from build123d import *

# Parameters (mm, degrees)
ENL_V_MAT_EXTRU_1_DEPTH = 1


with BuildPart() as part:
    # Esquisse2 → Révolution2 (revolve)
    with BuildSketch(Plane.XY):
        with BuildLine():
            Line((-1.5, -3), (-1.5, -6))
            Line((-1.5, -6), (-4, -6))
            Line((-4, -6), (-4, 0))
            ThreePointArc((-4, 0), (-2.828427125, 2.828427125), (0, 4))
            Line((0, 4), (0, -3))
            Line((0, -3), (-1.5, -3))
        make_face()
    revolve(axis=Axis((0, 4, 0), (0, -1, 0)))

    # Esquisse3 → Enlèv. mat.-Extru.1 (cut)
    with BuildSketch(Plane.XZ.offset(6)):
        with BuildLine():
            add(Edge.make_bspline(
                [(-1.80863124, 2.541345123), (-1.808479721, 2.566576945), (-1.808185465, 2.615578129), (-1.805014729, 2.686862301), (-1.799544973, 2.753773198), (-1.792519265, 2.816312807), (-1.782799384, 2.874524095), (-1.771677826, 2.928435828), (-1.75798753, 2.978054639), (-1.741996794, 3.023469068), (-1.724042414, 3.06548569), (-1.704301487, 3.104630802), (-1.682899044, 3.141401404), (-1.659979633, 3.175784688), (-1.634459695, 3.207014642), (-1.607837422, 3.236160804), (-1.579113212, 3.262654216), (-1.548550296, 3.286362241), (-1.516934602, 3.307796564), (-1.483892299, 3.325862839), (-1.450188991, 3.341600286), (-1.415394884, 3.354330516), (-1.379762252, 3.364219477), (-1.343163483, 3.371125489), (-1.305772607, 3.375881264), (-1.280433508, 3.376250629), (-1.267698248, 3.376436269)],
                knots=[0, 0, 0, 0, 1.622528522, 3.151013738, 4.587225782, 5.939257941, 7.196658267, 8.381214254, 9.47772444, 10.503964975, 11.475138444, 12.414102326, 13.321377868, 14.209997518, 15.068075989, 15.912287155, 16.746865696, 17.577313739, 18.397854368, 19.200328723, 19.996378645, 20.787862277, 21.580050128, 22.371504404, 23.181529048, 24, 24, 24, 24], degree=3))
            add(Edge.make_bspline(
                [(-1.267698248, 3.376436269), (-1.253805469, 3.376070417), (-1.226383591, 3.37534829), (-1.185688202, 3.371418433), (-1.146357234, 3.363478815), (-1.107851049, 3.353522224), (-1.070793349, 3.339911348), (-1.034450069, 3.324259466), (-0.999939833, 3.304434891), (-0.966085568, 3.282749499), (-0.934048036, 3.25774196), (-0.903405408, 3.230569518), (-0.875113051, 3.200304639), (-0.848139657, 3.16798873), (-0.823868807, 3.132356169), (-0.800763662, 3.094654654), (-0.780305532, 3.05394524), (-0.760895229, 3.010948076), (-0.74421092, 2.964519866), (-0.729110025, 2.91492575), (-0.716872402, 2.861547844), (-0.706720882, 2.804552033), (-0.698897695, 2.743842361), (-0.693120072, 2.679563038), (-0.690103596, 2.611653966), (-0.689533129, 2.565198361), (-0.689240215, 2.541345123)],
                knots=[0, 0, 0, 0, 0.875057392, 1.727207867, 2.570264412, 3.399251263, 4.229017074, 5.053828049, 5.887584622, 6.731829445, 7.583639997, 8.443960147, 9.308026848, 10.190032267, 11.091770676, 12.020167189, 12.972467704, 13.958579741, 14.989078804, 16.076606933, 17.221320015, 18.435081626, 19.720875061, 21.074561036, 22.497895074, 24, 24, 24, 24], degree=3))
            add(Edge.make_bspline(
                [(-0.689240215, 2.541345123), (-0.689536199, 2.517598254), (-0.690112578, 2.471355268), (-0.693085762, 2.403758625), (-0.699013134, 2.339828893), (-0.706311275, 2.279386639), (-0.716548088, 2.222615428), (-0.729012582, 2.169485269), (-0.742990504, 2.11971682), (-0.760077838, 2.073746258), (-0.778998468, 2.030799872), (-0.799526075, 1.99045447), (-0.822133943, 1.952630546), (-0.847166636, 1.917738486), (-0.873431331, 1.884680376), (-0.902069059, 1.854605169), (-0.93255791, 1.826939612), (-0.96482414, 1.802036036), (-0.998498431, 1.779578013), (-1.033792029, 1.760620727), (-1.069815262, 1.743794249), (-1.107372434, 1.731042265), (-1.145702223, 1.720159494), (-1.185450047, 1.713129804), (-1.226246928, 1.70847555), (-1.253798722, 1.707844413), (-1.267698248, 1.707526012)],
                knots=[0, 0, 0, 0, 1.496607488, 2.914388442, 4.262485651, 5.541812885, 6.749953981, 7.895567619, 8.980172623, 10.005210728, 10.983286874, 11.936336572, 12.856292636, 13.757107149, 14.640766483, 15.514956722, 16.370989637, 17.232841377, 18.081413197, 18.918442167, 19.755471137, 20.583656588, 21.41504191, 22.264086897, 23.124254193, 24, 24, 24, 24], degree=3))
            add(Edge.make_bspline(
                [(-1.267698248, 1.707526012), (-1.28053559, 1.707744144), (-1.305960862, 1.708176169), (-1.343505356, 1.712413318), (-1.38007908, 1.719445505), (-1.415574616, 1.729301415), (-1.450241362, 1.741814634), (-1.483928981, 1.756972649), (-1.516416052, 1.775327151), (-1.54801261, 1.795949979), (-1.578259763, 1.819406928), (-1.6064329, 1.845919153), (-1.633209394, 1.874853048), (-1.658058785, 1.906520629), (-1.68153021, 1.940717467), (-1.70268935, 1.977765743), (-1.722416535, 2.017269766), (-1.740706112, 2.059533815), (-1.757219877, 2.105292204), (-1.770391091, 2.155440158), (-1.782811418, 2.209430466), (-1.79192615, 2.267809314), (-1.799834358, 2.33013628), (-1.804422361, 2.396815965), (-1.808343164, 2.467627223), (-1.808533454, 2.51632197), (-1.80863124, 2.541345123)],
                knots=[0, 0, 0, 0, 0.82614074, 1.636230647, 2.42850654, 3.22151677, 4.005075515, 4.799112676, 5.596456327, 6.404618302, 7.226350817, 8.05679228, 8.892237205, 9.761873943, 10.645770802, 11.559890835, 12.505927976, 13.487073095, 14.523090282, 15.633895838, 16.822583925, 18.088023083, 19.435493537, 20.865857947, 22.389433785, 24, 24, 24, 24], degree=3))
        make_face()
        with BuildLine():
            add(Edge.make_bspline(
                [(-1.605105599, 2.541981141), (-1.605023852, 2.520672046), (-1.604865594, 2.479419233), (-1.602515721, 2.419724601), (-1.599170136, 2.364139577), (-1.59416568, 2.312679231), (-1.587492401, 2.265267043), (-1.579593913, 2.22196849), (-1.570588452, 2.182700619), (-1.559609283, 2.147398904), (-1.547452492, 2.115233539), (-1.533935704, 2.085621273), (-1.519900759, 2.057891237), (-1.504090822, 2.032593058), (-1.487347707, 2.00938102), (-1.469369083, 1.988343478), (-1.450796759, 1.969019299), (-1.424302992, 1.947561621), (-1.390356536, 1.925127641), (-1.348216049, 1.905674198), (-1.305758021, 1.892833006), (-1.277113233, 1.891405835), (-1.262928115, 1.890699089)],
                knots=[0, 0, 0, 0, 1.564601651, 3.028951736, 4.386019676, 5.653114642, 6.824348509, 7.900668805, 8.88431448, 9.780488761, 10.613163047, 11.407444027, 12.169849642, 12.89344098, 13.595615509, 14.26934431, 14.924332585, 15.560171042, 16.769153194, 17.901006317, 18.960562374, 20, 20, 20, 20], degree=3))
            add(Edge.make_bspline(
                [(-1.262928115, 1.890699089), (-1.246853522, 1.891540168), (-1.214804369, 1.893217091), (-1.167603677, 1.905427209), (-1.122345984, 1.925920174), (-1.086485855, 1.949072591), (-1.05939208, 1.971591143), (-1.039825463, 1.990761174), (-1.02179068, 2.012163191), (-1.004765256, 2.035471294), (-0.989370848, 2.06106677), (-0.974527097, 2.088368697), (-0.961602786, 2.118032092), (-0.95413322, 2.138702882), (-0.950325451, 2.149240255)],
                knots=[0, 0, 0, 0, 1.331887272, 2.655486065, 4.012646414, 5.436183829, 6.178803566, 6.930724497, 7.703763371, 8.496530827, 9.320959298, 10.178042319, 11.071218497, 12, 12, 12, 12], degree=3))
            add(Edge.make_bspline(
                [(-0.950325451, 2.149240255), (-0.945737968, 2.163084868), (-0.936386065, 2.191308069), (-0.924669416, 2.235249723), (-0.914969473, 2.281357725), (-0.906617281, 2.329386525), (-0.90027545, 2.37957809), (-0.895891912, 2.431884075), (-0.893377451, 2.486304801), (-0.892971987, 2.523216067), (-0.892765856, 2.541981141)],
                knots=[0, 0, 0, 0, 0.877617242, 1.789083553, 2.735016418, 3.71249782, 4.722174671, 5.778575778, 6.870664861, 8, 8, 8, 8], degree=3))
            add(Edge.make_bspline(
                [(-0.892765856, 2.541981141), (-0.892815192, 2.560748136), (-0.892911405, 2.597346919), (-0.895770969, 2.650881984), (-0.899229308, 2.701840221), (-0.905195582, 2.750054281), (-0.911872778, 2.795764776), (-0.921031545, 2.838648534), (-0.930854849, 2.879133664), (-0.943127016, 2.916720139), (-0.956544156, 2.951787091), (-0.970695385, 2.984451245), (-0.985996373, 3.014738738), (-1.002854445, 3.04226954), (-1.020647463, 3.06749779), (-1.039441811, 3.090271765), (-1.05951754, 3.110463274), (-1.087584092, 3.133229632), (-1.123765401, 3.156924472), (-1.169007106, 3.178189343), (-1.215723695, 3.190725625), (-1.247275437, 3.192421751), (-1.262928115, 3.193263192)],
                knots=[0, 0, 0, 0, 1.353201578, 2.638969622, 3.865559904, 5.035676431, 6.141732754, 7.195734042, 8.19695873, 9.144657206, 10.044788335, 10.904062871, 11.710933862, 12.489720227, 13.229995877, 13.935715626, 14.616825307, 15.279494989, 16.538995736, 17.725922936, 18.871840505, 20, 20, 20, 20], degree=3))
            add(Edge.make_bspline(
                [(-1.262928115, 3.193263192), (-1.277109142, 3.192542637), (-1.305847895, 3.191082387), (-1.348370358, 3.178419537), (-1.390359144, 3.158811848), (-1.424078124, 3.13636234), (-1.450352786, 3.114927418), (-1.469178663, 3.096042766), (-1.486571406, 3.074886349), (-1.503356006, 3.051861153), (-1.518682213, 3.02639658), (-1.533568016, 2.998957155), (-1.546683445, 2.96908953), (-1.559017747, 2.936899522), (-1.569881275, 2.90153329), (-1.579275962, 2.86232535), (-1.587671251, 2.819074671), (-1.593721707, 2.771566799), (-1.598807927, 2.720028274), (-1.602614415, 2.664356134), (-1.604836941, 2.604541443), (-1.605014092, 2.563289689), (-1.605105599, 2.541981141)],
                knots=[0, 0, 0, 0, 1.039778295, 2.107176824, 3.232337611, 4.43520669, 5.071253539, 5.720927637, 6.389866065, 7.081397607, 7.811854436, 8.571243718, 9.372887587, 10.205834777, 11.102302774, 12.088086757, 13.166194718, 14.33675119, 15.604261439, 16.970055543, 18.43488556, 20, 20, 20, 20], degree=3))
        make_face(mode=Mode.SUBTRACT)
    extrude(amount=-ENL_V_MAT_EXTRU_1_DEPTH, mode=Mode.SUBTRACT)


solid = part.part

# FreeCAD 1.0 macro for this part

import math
import FreeCAD as App
import Part
import Sketcher

V = App.Vector

doc = App.newDocument("Part")
body = doc.addObject("PartDesign::Body", "Body")

# Sketch on XY plane
sketch1 = doc.addObject("Sketcher::SketchObject", "Sketch")
body.addObject(sketch1)
sketch1.AttachmentSupport = (doc.XY_Plane, [""])
sketch1.MapMode = "FlatFace"
sketch1.addGeometry([
    Part.LineSegment(V(-1.5, -6, 0), V(-1.5, -3, 0)),  # 0
    Part.LineSegment(V(-1.5, -3, 0), V(0, -3, 0)),  # 1
    Part.LineSegment(V(0, -3, 0), V(0, 4, 0)),  # 2
    Part.ArcOfCircle(Part.Circle(V(0, 0, 0), V(0, 0, 1), 4), math.radians(90), math.radians(180)),  # 3
    Part.LineSegment(V(-4, 0, 0), V(-4, -6, 0)),  # 4
    Part.LineSegment(V(-4, -6, 0), V(-1.5, -6, 0)),  # 5
], False)
sketch1.addConstraint([
    Sketcher.Constraint("Coincident", 0, 2, 1, 1),
    Sketcher.Constraint("Coincident", 1, 2, 2, 1),
    Sketcher.Constraint("Coincident", 2, 2, 3, 1),
    Sketcher.Constraint("Tangent", 3, 2, 4, 1),
    Sketcher.Constraint("Coincident", 4, 2, 5, 1),
    Sketcher.Constraint("Coincident", 5, 2, 0, 1),
    Sketcher.Constraint("Vertical", 0),
    Sketcher.Constraint("Horizontal", 1),
    Sketcher.Constraint("Vertical", 2),
    Sketcher.Constraint("Vertical", 4),
    Sketcher.Constraint("Horizontal", 5),
    Sketcher.Constraint("Coincident", 3, 3, -1, 1),
    Sketcher.Constraint("PointOnObject", 1, 2, -2),
    Sketcher.Constraint("Radius", 3, 4.0),
    Sketcher.Constraint("DistanceY", 0, 1, 0, 2, 3.0),
    Sketcher.Constraint("DistanceY", 2, 1, 2, 2, 7.0),
    Sketcher.Constraint("DistanceX", 1, 1, 1, 2, 1.5),
])
revolution = doc.addObject("PartDesign::Revolution", "Revolution")
body.addObject(revolution)
revolution.Profile = sketch1
revolution.ReferenceAxis = (sketch1, ["V_Axis"])
revolution.Angle = 360

# Sketch on XZ plane
sketch2 = doc.addObject("Sketcher::SketchObject", "Sketch001")
body.addObject(sketch2)
sketch2.AttachmentSupport = (doc.XZ_Plane, [""])
sketch2.MapMode = "FlatFace"
sketch2.AttachmentOffset = App.Placement(V(0, 0, 6), App.Rotation())
sketch2.addGeometry([
    Part.BSplineCurve([V(-1.808631, 2.541345, 0), V(-1.80848, 2.566577, 0), V(-1.808185, 2.615578, 0), V(-1.805015, 2.686862, 0), V(-1.799545, 2.753773, 0), V(-1.792519, 2.816313, 0), V(-1.782799, 2.874524, 0), V(-1.771678, 2.928436, 0), V(-1.757988, 2.978055, 0), V(-1.741997, 3.023469, 0), V(-1.724042, 3.065486, 0), V(-1.704301, 3.104631, 0), V(-1.682899, 3.141401, 0), V(-1.65998, 3.175785, 0), V(-1.63446, 3.207015, 0), V(-1.607837, 3.236161, 0), V(-1.579113, 3.262654, 0), V(-1.54855, 3.286362, 0), V(-1.516935, 3.307797, 0), V(-1.483892, 3.325863, 0), V(-1.450189, 3.3416, 0), V(-1.415395, 3.354331, 0), V(-1.379762, 3.364219, 0), V(-1.343163, 3.371125, 0), V(-1.305773, 3.375881, 0), V(-1.280434, 3.376251, 0), V(-1.267698, 3.376436, 0)], [4, 1, 1, 1, 1, 1, 1, 1, 1, 1, 1, 1, 1, 1, 1, 1, 1, 1, 1, 1, 1, 1, 1, 1, 4], [0, 1.622528522, 3.151013738, 4.587225782, 5.939257941, 7.196658267, 8.381214254, 9.47772444, 10.503964975, 11.475138444, 12.414102326, 13.321377868, 14.209997518, 15.068075989, 15.912287155, 16.746865696, 17.577313739, 18.397854368, 19.200328723, 19.996378645, 20.787862277, 21.580050128, 22.371504404, 23.181529048, 24], False, 3, [1, 1, 1, 1, 1, 1, 1, 1, 1, 1, 1, 1, 1, 1, 1, 1, 1, 1, 1, 1, 1, 1, 1, 1, 1, 1, 1], False),  # 0
    Part.BSplineCurve([V(-1.267698, 1.707526, 0), V(-1.280536, 1.707744, 0), V(-1.305961, 1.708176, 0), V(-1.343505, 1.712413, 0), V(-1.380079, 1.719446, 0), V(-1.415575, 1.729301, 0), V(-1.450241, 1.741815, 0), V(-1.483929, 1.756973, 0), V(-1.516416, 1.775327, 0), V(-1.548013, 1.79595, 0), V(-1.57826, 1.819407, 0), V(-1.606433, 1.845919, 0), V(-1.633209, 1.874853, 0), V(-1.658059, 1.906521, 0), V(-1.68153, 1.940717, 0), V(-1.702689, 1.977766, 0), V(-1.722417, 2.01727, 0), V(-1.740706, 2.059534, 0), V(-1.75722, 2.105292, 0), V(-1.770391, 2.15544, 0), V(-1.782811, 2.20943, 0), V(-1.791926, 2.267809, 0), V(-1.799834, 2.330136, 0), V(-1.804422, 2.396816, 0), V(-1.808343, 2.467627, 0), V(-1.808533, 2.516322, 0), V(-1.808631, 2.541345, 0)], [4, 1, 1, 1, 1, 1, 1, 1, 1, 1, 1, 1, 1, 1, 1, 1, 1, 1, 1, 1, 1, 1, 1, 1, 4], [0, 0.82614074, 1.636230647, 2.42850654, 3.22151677, 4.005075515, 4.799112676, 5.596456327, 6.404618302, 7.226350817, 8.05679228, 8.892237205, 9.761873943, 10.645770802, 11.559890835, 12.505927976, 13.487073095, 14.523090282, 15.633895838, 16.822583925, 18.088023083, 19.435493537, 20.865857947, 22.389433785, 24], False, 3, [1, 1, 1, 1, 1, 1, 1, 1, 1, 1, 1, 1, 1, 1, 1, 1, 1, 1, 1, 1, 1, 1, 1, 1, 1, 1, 1], False),  # 1
    Part.BSplineCurve([V(-0.68924, 2.541345, 0), V(-0.689536, 2.517598, 0), V(-0.690113, 2.471355, 0), V(-0.693086, 2.403759, 0), V(-0.699013, 2.339829, 0), V(-0.706311, 2.279387, 0), V(-0.716548, 2.222615, 0), V(-0.729013, 2.169485, 0), V(-0.742991, 2.119717, 0), V(-0.760078, 2.073746, 0), V(-0.778998, 2.0308, 0), V(-0.799526, 1.990454, 0), V(-0.822134, 1.952631, 0), V(-0.847167, 1.917738, 0), V(-0.873431, 1.88468, 0), V(-0.902069, 1.854605, 0), V(-0.932558, 1.82694, 0), V(-0.964824, 1.802036, 0), V(-0.998498, 1.779578, 0), V(-1.033792, 1.760621, 0), V(-1.069815, 1.743794, 0), V(-1.107372, 1.731042, 0), V(-1.145702, 1.720159, 0), V(-1.18545, 1.71313, 0), V(-1.226247, 1.708476, 0), V(-1.253799, 1.707844, 0), V(-1.267698, 1.707526, 0)], [4, 1, 1, 1, 1, 1, 1, 1, 1, 1, 1, 1, 1, 1, 1, 1, 1, 1, 1, 1, 1, 1, 1, 1, 4], [0, 1.496607488, 2.914388442, 4.262485651, 5.541812885, 6.749953981, 7.895567619, 8.980172623, 10.005210728, 10.983286874, 11.936336572, 12.856292636, 13.757107149, 14.640766483, 15.514956722, 16.370989637, 17.232841377, 18.081413197, 18.918442167, 19.755471137, 20.583656588, 21.41504191, 22.264086897, 23.124254193, 24], False, 3, [1, 1, 1, 1, 1, 1, 1, 1, 1, 1, 1, 1, 1, 1, 1, 1, 1, 1, 1, 1, 1, 1, 1, 1, 1, 1, 1], False),  # 2
    Part.BSplineCurve([V(-1.267698, 3.376436, 0), V(-1.253805, 3.37607, 0), V(-1.226384, 3.375348, 0), V(-1.185688, 3.371418, 0), V(-1.146357, 3.363479, 0), V(-1.107851, 3.353522, 0), V(-1.070793, 3.339911, 0), V(-1.03445, 3.324259, 0), V(-0.99994, 3.304435, 0), V(-0.966086, 3.282749, 0), V(-0.934048, 3.257742, 0), V(-0.903405, 3.23057, 0), V(-0.875113, 3.200305, 0), V(-0.84814, 3.167989, 0), V(-0.823869, 3.132356, 0), V(-0.800764, 3.094655, 0), V(-0.780306, 3.053945, 0), V(-0.760895, 3.010948, 0), V(-0.744211, 2.96452, 0), V(-0.72911, 2.914926, 0), V(-0.716872, 2.861548, 0), V(-0.706721, 2.804552, 0), V(-0.698898, 2.743842, 0), V(-0.69312, 2.679563, 0), V(-0.690104, 2.611654, 0), V(-0.689533, 2.565198, 0), V(-0.68924, 2.541345, 0)], [4, 1, 1, 1, 1, 1, 1, 1, 1, 1, 1, 1, 1, 1, 1, 1, 1, 1, 1, 1, 1, 1, 1, 1, 4], [0, 0.875057392, 1.727207867, 2.570264412, 3.399251263, 4.229017074, 5.053828049, 5.887584622, 6.731829445, 7.583639997, 8.443960147, 9.308026848, 10.190032267, 11.091770676, 12.020167189, 12.972467704, 13.958579741, 14.989078804, 16.076606933, 17.221320015, 18.435081626, 19.720875061, 21.074561036, 22.497895074, 24], False, 3, [1, 1, 1, 1, 1, 1, 1, 1, 1, 1, 1, 1, 1, 1, 1, 1, 1, 1, 1, 1, 1, 1, 1, 1, 1, 1, 1], False),  # 3
    Part.BSplineCurve([V(-1.262928, 3.193263, 0), V(-1.277109, 3.192543, 0), V(-1.305848, 3.191082, 0), V(-1.34837, 3.17842, 0), V(-1.390359, 3.158812, 0), V(-1.424078, 3.136362, 0), V(-1.450353, 3.114927, 0), V(-1.469179, 3.096043, 0), V(-1.486571, 3.074886, 0), V(-1.503356, 3.051861, 0), V(-1.518682, 3.026397, 0), V(-1.533568, 2.998957, 0), V(-1.546683, 2.96909, 0), V(-1.559018, 2.9369, 0), V(-1.569881, 2.901533, 0), V(-1.579276, 2.862325, 0), V(-1.587671, 2.819075, 0), V(-1.593722, 2.771567, 0), V(-1.598808, 2.720028, 0), V(-1.602614, 2.664356, 0), V(-1.604837, 2.604541, 0), V(-1.605014, 2.56329, 0), V(-1.605106, 2.541981, 0)], [4, 1, 1, 1, 1, 1, 1, 1, 1, 1, 1, 1, 1, 1, 1, 1, 1, 1, 1, 1, 4], [0, 1.039778295, 2.107176824, 3.232337611, 4.43520669, 5.071253539, 5.720927637, 6.389866065, 7.081397607, 7.811854436, 8.571243718, 9.372887587, 10.205834777, 11.102302774, 12.088086757, 13.166194718, 14.33675119, 15.604261439, 16.970055543, 18.43488556, 20], False, 3, [1, 1, 1, 1, 1, 1, 1, 1, 1, 1, 1, 1, 1, 1, 1, 1, 1, 1, 1, 1, 1, 1, 1], False),  # 4
    Part.BSplineCurve([V(-0.892766, 2.541981, 0), V(-0.892815, 2.560748, 0), V(-0.892911, 2.597347, 0), V(-0.895771, 2.650882, 0), V(-0.899229, 2.70184, 0), V(-0.905196, 2.750054, 0), V(-0.911873, 2.795765, 0), V(-0.921032, 2.838649, 0), V(-0.930855, 2.879134, 0), V(-0.943127, 2.91672, 0), V(-0.956544, 2.951787, 0), V(-0.970695, 2.984451, 0), V(-0.985996, 3.014739, 0), V(-1.002854, 3.04227, 0), V(-1.020647, 3.067498, 0), V(-1.039442, 3.090272, 0), V(-1.059518, 3.110463, 0), V(-1.087584, 3.13323, 0), V(-1.123765, 3.156924, 0), V(-1.169007, 3.178189, 0), V(-1.215724, 3.190726, 0), V(-1.247275, 3.192422, 0), V(-1.262928, 3.193263, 0)], [4, 1, 1, 1, 1, 1, 1, 1, 1, 1, 1, 1, 1, 1, 1, 1, 1, 1, 1, 1, 4], [0, 1.353201578, 2.638969622, 3.865559904, 5.035676431, 6.141732754, 7.195734042, 8.19695873, 9.144657206, 10.044788335, 10.904062871, 11.710933862, 12.489720227, 13.229995877, 13.935715626, 14.616825307, 15.279494989, 16.538995736, 17.725922936, 18.871840505, 20], False, 3, [1, 1, 1, 1, 1, 1, 1, 1, 1, 1, 1, 1, 1, 1, 1, 1, 1, 1, 1, 1, 1, 1, 1], False),  # 5
    Part.BSplineCurve([V(-0.950325, 2.14924, 0), V(-0.945738, 2.163085, 0), V(-0.936386, 2.191308, 0), V(-0.924669, 2.23525, 0), V(-0.914969, 2.281358, 0), V(-0.906617, 2.329387, 0), V(-0.900275, 2.379578, 0), V(-0.895892, 2.431884, 0), V(-0.893377, 2.486305, 0), V(-0.892972, 2.523216, 0), V(-0.892766, 2.541981, 0)], [4, 1, 1, 1, 1, 1, 1, 1, 4], [0, 0.877617242, 1.789083553, 2.735016418, 3.71249782, 4.722174671, 5.778575778, 6.870664861, 8], False, 3, [1, 1, 1, 1, 1, 1, 1, 1, 1, 1, 1], False),  # 6
    Part.BSplineCurve([V(-1.262928, 1.890699, 0), V(-1.246854, 1.89154, 0), V(-1.214804, 1.893217, 0), V(-1.167604, 1.905427, 0), V(-1.122346, 1.92592, 0), V(-1.086486, 1.949073, 0), V(-1.059392, 1.971591, 0), V(-1.039825, 1.990761, 0), V(-1.021791, 2.012163, 0), V(-1.004765, 2.035471, 0), V(-0.989371, 2.061067, 0), V(-0.974527, 2.088369, 0), V(-0.961603, 2.118032, 0), V(-0.954133, 2.138703, 0), V(-0.950325, 2.14924, 0)], [4, 1, 1, 1, 1, 1, 1, 1, 1, 1, 1, 1, 4], [0, 1.331887272, 2.655486065, 4.012646414, 5.436183829, 6.178803566, 6.930724497, 7.703763371, 8.496530827, 9.320959298, 10.178042319, 11.071218497, 12], False, 3, [1, 1, 1, 1, 1, 1, 1, 1, 1, 1, 1, 1, 1, 1, 1], False),  # 7
    Part.BSplineCurve([V(-1.605106, 2.541981, 0), V(-1.605024, 2.520672, 0), V(-1.604866, 2.479419, 0), V(-1.602516, 2.419725, 0), V(-1.59917, 2.36414, 0), V(-1.594166, 2.312679, 0), V(-1.587492, 2.265267, 0), V(-1.579594, 2.221968, 0), V(-1.570588, 2.182701, 0), V(-1.559609, 2.147399, 0), V(-1.547452, 2.115234, 0), V(-1.533936, 2.085621, 0), V(-1.519901, 2.057891, 0), V(-1.504091, 2.032593, 0), V(-1.487348, 2.009381, 0), V(-1.469369, 1.988343, 0), V(-1.450797, 1.969019, 0), V(-1.424303, 1.947562, 0), V(-1.390357, 1.925128, 0), V(-1.348216, 1.905674, 0), V(-1.305758, 1.892833, 0), V(-1.277113, 1.891406, 0), V(-1.262928, 1.890699, 0)], [4, 1, 1, 1, 1, 1, 1, 1, 1, 1, 1, 1, 1, 1, 1, 1, 1, 1, 1, 1, 4], [0, 1.564601651, 3.028951736, 4.386019676, 5.653114642, 6.824348509, 7.900668805, 8.88431448, 9.780488761, 10.613163047, 11.407444027, 12.169849642, 12.89344098, 13.595615509, 14.26934431, 14.924332585, 15.560171042, 16.769153194, 17.901006317, 18.960562374, 20], False, 3, [1, 1, 1, 1, 1, 1, 1, 1, 1, 1, 1, 1, 1, 1, 1, 1, 1, 1, 1, 1, 1, 1, 1], False),  # 8
], False)
sketch2.addConstraint([
    Sketcher.Constraint("Block", 0),
    Sketcher.Constraint("Block", 1),
    Sketcher.Constraint("Block", 2),
    Sketcher.Constraint("Block", 3),
    Sketcher.Constraint("Block", 4),
    Sketcher.Constraint("Block", 5),
    Sketcher.Constraint("Block", 6),
    Sketcher.Constraint("Block", 7),
    Sketcher.Constraint("Block", 8),
])
pocket1 = doc.addObject("PartDesign::Pocket", "Pocket")
body.addObject(pocket1)
pocket1.Profile = sketch2
pocket1.Length = 1

doc.recompute()
